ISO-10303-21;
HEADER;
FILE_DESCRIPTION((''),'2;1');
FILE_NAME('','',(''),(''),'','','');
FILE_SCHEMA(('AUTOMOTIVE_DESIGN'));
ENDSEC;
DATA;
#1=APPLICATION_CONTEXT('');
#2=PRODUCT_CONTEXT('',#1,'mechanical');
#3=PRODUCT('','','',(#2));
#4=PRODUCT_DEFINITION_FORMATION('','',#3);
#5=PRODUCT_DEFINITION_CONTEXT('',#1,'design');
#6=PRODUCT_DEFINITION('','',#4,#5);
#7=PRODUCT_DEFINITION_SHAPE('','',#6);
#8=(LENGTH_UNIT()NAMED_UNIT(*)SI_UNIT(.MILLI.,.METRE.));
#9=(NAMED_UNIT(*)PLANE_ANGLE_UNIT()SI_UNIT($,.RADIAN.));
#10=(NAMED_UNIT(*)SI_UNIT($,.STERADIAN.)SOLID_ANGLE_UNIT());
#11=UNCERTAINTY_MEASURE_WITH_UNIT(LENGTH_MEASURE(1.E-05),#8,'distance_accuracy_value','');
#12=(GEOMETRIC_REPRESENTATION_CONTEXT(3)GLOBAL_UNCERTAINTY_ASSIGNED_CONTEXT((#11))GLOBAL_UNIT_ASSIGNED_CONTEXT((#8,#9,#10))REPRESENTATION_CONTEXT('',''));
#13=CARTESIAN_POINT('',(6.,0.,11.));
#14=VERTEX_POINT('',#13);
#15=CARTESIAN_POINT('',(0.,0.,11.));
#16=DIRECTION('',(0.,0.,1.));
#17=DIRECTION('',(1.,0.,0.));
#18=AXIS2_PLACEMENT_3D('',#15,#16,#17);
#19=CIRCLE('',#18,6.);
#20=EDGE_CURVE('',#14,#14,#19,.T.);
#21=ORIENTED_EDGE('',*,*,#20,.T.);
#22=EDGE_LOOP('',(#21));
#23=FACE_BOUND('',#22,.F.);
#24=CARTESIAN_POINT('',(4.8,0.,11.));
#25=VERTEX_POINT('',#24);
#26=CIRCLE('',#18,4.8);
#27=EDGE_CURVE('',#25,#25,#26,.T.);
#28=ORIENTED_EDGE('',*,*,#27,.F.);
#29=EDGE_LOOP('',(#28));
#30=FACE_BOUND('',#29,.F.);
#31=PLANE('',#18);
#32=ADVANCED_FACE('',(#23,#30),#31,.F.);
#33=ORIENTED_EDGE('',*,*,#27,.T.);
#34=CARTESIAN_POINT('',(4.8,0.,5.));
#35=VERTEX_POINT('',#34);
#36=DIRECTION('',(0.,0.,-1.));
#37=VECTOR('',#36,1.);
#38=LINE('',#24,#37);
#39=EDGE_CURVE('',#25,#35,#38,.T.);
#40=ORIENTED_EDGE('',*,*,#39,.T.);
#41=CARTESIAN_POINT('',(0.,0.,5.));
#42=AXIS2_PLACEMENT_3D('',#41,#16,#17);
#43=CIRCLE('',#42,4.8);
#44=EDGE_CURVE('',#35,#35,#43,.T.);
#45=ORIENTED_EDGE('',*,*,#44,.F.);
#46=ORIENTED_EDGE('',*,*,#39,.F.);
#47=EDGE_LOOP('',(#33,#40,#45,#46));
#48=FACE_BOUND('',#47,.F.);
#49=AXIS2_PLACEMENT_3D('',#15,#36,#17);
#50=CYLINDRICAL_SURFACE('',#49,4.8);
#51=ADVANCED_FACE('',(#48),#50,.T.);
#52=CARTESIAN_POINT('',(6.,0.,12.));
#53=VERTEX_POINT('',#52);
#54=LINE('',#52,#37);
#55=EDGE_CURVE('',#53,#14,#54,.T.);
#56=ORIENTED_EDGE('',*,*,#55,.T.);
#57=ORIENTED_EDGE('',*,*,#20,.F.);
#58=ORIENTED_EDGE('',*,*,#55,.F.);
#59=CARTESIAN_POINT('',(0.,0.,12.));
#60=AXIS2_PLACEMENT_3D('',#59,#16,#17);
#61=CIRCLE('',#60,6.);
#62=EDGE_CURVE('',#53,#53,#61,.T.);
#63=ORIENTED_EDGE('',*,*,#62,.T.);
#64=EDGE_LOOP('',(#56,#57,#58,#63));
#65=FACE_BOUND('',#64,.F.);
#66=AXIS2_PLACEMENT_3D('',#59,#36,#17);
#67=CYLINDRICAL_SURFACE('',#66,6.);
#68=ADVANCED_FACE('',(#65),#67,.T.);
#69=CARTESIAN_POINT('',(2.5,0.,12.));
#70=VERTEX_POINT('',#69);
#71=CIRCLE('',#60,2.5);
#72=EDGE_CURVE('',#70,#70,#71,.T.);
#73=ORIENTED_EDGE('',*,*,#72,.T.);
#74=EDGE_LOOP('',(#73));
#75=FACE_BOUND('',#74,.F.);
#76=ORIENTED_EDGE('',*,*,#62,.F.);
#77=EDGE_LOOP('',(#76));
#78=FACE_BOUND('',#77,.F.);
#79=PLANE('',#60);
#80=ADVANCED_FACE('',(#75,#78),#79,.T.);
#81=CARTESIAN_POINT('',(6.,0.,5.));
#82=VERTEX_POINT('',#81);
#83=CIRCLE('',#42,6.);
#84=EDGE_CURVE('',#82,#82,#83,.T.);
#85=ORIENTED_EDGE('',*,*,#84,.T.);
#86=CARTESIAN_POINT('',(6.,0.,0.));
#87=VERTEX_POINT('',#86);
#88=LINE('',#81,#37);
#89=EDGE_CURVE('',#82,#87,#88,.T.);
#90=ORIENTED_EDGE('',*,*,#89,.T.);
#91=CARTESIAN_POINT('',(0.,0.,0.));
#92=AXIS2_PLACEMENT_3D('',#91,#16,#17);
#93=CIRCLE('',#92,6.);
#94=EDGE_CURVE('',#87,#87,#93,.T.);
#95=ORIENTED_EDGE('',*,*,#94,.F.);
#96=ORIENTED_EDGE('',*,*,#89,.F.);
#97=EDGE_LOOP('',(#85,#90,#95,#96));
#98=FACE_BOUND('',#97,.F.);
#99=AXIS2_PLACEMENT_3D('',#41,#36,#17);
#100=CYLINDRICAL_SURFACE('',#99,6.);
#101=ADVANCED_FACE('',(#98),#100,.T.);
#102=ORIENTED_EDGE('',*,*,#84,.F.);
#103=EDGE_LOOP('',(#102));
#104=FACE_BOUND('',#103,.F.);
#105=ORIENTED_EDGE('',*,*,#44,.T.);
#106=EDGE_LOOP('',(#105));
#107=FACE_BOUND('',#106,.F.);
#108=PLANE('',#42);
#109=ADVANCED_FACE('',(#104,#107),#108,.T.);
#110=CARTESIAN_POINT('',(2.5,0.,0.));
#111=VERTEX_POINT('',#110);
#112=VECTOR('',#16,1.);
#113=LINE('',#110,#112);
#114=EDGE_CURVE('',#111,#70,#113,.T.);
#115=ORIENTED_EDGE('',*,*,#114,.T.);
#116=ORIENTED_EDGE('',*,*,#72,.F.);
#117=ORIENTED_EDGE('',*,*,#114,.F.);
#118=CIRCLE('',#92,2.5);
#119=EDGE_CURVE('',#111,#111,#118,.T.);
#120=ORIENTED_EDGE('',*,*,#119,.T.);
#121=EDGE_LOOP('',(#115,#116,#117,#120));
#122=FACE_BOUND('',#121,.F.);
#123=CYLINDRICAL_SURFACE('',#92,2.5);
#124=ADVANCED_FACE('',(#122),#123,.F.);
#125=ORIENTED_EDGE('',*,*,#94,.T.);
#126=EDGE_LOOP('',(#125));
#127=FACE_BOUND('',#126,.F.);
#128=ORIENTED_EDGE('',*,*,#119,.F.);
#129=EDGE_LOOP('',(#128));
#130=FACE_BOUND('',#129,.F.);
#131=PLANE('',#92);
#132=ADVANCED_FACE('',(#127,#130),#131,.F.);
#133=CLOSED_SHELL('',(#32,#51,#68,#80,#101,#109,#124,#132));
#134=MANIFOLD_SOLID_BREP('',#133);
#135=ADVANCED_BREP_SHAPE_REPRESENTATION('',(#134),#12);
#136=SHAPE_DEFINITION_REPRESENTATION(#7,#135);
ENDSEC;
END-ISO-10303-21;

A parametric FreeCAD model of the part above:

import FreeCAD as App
import Part
import Sketcher

doc = App.newDocument("Part")
body = doc.addObject("PartDesign::Body", "Body")

# Sketch on XZ plane
sketch1 = doc.addObject("Sketcher::SketchObject", "Sketch")
body.addObject(sketch1)
sketch1.AttachmentSupport = (doc.XZ_Plane, [""])
sketch1.MapMode = "FlatFace"
sketch1.addGeometry([
    Part.LineSegment(App.Vector(2.5, 12, 0), App.Vector(2.5, 0, 0)),  # 0
    Part.LineSegment(App.Vector(2.5, 0, 0), App.Vector(6, 0, 0)),  # 1
    Part.LineSegment(App.Vector(6, 0, 0), App.Vector(6, 5, 0)),  # 2
    Part.LineSegment(App.Vector(6, 5, 0), App.Vector(4.8, 5, 0)),  # 3
    Part.LineSegment(App.Vector(4.8, 5, 0), App.Vector(4.8, 11, 0)),  # 4
    Part.LineSegment(App.Vector(4.8, 11, 0), App.Vector(6, 11, 0)),  # 5
    Part.LineSegment(App.Vector(6, 11, 0), App.Vector(6, 12, 0)),  # 6
    Part.LineSegment(App.Vector(6, 12, 0), App.Vector(2.5, 12, 0)),  # 7
], False)
sketch1.addConstraint([
    Sketcher.Constraint("Coincident", 0, 2, 1, 1),
    Sketcher.Constraint("Coincident", 1, 2, 2, 1),
    Sketcher.Constraint("Coincident", 2, 2, 3, 1),
    Sketcher.Constraint("Coincident", 3, 2, 4, 1),
    Sketcher.Constraint("Coincident", 4, 2, 5, 1),
    Sketcher.Constraint("Coincident", 5, 2, 6, 1),
    Sketcher.Constraint("Coincident", 6, 2, 7, 1),
    Sketcher.Constraint("Coincident", 7, 2, 0, 1),
    Sketcher.Constraint("Vertical", 0),
    Sketcher.Constraint("Horizontal", 1),
    Sketcher.Constraint("Vertical", 2),
    Sketcher.Constraint("Horizontal", 3),
    Sketcher.Constraint("Vertical", 4),
    Sketcher.Constraint("Horizontal", 5),
    Sketcher.Constraint("Vertical", 6),
    Sketcher.Constraint("Horizontal", 7),
    Sketcher.Constraint("PointOnObject", 0, 2, -1),
    Sketcher.Constraint("Vertical", 2, 2, 5, 2),
    Sketcher.Constraint("DistanceY", 0, 2, 0, 1, 12.0),
    Sketcher.Constraint("DistanceY", 2, 1, 2, 2, 5.0),
    Sketcher.Constraint("DistanceY", 4, 1, 4, 2, 6.0),
    Sketcher.Constraint("DistanceX", 1, 1, 1, 2, 3.5),
    Sketcher.Constraint("DistanceX", 3, 2, 3, 1, 1.2),
    Sketcher.Constraint("DistanceX", -1, 1, 1, 2, 6.0),
])
revolution = doc.addObject("PartDesign::Revolution", "Revolution")
body.addObject(revolution)
revolution.Profile = sketch1
revolution.ReferenceAxis = (sketch1, ["V_Axis"])
revolution.Angle = 360

doc.recompute()
